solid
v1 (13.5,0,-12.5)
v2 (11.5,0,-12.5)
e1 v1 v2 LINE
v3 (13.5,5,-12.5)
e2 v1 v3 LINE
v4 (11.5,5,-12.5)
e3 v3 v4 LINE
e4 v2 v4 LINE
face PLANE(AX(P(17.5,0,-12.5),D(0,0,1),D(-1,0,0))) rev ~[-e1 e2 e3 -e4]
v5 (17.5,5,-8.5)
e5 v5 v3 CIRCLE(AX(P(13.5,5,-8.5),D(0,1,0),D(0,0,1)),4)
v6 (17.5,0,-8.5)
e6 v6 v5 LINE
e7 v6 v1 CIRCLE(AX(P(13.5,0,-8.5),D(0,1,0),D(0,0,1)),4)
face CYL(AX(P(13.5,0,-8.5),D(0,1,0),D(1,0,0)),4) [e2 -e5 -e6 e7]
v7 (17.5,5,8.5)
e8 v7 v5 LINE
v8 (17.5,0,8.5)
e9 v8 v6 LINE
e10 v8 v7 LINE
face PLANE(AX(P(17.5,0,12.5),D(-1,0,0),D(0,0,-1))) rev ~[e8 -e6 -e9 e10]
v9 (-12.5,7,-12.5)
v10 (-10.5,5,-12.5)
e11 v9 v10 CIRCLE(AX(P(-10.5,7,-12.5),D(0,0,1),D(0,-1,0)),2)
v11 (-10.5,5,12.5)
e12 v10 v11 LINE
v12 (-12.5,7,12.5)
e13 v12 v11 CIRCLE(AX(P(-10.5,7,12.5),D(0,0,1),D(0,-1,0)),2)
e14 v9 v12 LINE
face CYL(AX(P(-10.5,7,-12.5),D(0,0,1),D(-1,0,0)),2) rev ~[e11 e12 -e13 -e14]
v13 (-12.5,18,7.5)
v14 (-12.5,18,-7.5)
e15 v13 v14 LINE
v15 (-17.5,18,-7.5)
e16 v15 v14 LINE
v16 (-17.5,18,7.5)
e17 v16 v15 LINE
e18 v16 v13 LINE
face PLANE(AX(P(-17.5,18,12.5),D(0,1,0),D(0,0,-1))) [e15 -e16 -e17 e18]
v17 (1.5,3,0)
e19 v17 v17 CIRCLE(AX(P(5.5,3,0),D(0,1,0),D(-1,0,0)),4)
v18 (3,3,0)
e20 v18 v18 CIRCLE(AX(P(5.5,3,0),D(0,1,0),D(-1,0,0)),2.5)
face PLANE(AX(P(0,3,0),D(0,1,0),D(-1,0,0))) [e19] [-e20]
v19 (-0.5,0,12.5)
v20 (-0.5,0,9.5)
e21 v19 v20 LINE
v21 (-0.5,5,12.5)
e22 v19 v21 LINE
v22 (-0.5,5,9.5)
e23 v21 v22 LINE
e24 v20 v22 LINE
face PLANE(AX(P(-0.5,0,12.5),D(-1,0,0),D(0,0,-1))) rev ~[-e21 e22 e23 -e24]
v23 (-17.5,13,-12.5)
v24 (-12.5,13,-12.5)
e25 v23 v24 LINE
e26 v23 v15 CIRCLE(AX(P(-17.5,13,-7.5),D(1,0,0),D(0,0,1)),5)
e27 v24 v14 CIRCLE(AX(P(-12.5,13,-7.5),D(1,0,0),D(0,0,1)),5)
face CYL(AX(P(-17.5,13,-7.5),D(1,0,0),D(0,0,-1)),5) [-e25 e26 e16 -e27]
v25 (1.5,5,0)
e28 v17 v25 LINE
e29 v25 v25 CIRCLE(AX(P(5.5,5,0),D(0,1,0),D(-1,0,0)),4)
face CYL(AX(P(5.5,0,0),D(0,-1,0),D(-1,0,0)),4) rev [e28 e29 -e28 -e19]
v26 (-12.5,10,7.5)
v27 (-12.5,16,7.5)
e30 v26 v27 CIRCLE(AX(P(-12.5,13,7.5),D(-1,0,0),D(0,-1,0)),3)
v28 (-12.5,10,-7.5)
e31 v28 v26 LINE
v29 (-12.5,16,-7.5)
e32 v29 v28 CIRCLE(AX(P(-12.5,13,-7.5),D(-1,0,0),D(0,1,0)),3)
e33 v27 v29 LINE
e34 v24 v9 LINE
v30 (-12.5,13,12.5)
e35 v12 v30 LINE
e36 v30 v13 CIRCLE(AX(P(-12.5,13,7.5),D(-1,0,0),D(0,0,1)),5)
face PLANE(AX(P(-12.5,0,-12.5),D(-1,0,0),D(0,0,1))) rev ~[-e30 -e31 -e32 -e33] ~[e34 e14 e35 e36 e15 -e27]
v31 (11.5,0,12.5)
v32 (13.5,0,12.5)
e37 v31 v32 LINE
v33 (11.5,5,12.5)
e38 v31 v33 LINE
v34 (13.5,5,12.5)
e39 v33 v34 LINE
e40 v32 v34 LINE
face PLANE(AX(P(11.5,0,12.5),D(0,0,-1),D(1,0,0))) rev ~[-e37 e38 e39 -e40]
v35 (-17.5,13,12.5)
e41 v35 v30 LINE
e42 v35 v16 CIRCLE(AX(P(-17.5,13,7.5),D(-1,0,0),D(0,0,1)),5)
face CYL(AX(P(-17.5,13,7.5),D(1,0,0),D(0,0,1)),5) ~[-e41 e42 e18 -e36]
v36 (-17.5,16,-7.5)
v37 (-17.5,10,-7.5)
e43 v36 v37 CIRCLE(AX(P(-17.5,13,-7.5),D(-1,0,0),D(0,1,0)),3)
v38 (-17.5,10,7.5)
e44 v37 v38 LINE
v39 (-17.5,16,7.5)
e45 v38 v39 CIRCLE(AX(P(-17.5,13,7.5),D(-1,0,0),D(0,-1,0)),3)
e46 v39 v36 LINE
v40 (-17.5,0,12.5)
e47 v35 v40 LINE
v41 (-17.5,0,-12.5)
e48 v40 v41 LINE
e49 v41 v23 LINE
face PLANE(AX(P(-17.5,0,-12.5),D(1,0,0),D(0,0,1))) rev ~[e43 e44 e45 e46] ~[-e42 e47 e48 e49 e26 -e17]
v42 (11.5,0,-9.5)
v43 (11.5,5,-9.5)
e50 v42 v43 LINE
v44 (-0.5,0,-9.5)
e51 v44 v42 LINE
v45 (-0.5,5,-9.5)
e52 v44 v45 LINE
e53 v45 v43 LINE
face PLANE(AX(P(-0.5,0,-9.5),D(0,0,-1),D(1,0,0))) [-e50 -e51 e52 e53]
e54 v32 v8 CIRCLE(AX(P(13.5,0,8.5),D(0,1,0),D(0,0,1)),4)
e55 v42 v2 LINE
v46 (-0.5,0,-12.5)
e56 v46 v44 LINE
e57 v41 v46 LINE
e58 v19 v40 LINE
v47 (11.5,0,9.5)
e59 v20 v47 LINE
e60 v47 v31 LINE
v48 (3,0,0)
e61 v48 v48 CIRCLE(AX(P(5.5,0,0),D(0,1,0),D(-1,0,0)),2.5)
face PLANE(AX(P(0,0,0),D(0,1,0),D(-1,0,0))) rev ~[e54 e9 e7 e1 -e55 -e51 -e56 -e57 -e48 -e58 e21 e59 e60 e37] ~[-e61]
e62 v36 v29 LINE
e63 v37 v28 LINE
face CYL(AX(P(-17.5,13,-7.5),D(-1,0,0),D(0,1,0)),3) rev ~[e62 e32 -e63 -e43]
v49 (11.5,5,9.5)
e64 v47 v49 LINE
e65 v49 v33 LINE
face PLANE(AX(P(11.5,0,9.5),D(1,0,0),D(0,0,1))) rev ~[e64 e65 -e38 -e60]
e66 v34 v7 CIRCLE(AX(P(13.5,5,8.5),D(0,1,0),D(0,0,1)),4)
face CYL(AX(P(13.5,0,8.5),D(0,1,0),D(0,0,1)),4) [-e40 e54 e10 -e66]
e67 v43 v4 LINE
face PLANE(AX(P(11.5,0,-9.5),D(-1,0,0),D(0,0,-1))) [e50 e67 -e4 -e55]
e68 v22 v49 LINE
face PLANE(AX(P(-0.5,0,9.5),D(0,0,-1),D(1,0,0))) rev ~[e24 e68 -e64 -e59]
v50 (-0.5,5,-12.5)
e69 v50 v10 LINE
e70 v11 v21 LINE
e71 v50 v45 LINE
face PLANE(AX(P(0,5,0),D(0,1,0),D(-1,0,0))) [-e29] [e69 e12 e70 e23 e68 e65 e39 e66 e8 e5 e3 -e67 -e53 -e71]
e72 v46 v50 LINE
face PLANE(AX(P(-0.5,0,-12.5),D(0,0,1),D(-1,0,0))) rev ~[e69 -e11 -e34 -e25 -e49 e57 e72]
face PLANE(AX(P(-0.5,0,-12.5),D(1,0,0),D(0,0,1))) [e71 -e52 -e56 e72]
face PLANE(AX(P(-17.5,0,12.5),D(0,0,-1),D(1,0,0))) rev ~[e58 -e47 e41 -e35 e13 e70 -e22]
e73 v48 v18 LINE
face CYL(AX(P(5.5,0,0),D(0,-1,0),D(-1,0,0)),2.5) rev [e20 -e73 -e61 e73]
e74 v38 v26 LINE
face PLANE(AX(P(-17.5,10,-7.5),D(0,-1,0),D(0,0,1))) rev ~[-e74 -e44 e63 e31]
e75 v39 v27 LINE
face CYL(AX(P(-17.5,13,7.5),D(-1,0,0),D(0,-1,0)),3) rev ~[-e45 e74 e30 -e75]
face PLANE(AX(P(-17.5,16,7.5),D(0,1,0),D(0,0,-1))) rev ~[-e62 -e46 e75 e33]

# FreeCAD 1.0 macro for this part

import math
import FreeCAD as App
import Part
import Sketcher

V = App.Vector
Q = App.Units.Quantity


def edges_at(feature, points):
    """Names of the edges that pass closest to the given points."""
    edges = feature.Shape.Edges
    near = lambda p: min(range(len(edges)), key=lambda i: edges[i].distToShape(Part.Vertex(*p))[0])
    return sorted({f"Edge{near(p) + 1}" for p in points})


def add_polygon(sketch, points):
    """Adds a closed chain of lines whose ends are joined by coincident constraints."""
    first, n = sketch.GeometryCount, len(points)
    for a, b in zip(points, points[1:] + points[:1]):
        sketch.addGeometry(Part.LineSegment(App.Vector(*a, 0), App.Vector(*b, 0)), False)
    for i in range(n):
        sketch.addConstraint(Sketcher.Constraint("Coincident", first + i, 2, first + (i + 1) % n, 1))

doc = App.newDocument("Part")
body = doc.addObject("PartDesign::Body", "Body")

sketch1 = body.newObject("Sketcher::SketchObject", "Sketch")
sketch1.AttachmentSupport = (doc.getObject("XZ_Plane"), [""])
sketch1.MapMode = "FlatFace"
add_polygon(sketch1, [(17.5, 12.5), (17.5, -12.5), (11.5, -12.5), (11.5, -9.5), (-0.5, -9.5), (-0.5, -12.5), (-17.5, -12.5), (-17.5, 12.5), (-0.5, 12.5), (-0.5, 9.5), (11.5, 9.5), (11.5, 12.5)])
sketch1.addGeometry(Part.Circle(V(5.5, 0, 0), V(0, 0, 1), 4), False)
sketch1.addConstraint([
    Sketcher.Constraint("Vertical", 0),
    Sketcher.Constraint("Horizontal", 1),
    Sketcher.Constraint("Vertical", 2),
    Sketcher.Constraint("Horizontal", 3),
    Sketcher.Constraint("Vertical", 4),
    Sketcher.Constraint("Horizontal", 5),
    Sketcher.Constraint("Vertical", 6),
    Sketcher.Constraint("Horizontal", 7),
    Sketcher.Constraint("Vertical", 8),
    Sketcher.Constraint("Horizontal", 9),
    Sketcher.Constraint("Vertical", 10),
    Sketcher.Constraint("Horizontal", 11),
    Sketcher.Constraint("Symmetric", 0, 2, 6, 2, -1, 1),
    Sketcher.Constraint("Symmetric", 4, 2, 7, 2, -1),
    Sketcher.Constraint("Symmetric", 2, 2, 9, 2, -1),
    Sketcher.Constraint("PointOnObject", 12, 3, -1),
    Sketcher.Constraint("Horizontal", 7, 2, 10, 2),
    Sketcher.Constraint("Diameter", 12, Q("8 mm")),
    Sketcher.Constraint("DistanceX", 1, 2, 1, 1, Q("6 mm")),
    Sketcher.Constraint("DistanceX", 3, 2, 3, 1, Q("12 mm")),
    Sketcher.Constraint("DistanceY", 0, 2, 0, 1, Q("25 mm")),
    Sketcher.Constraint("DistanceX", 12, 3, 0, 2, Q("12 mm")),
    Sketcher.Constraint("DistanceY", 3, 2, 8, 2, Q("19 mm")),
    Sketcher.Constraint("DistanceX", 5, 2, 5, 1, Q("17 mm")),
])
pad1 = body.newObject("PartDesign::Pad", "Pad")
pad1.Profile = sketch1
pad1.Length = 5
pad1.Reversed = True

sketch2 = body.newObject("Sketcher::SketchObject", "Sketch001")
sketch2.AttachmentSupport = (doc.getObject("YZ_Plane"), [""])
sketch2.MapMode = "FlatFace"
sketch2.AttachmentOffset = App.Placement(V(0, 0, -17.5), App.Rotation())
add_polygon(sketch2, [(0, -12), (0, 12), (18, 12), (18, -12)])
sketch2.addConstraint([
    Sketcher.Constraint("Vertical", 0),
    Sketcher.Constraint("Horizontal", 1),
    Sketcher.Constraint("Vertical", 2),
    Sketcher.Constraint("Horizontal", 3),
    Sketcher.Constraint("Symmetric", 0, 2, 3, 2, -1, 1),
    Sketcher.Constraint("DistanceX", 1, 1, 1, 2, Q("18 mm")),
    Sketcher.Constraint("DistanceY", 0, 1, 0, 2, Q("25 mm")),
])
pad2 = body.newObject("PartDesign::Pad", "Pad001")
pad2.Profile = sketch2
pad2.Length = 5

sketch3 = body.newObject("Sketcher::SketchObject", "Sketch002")
sketch3.AttachmentSupport = (doc.getObject("YZ_Plane"), [""])
sketch3.MapMode = "FlatFace"
sketch3.AttachmentOffset = App.Placement(V(0, 0, -17.5), App.Rotation())
sketch3.addGeometry([
    Part.ArcOfCircle(Part.Circle(V(13, -7.5, 0), V(0, 0, 1), 3), math.radians(180), math.radians(360)),
    Part.LineSegment(V(10, -7.5, 0), V(10, 7.5, 0)),
    Part.ArcOfCircle(Part.Circle(V(13, 7.5, 0), V(0, 0, 1), 3), math.radians(0), math.radians(180)),
    Part.LineSegment(V(16, 7.5, 0), V(16, -7.5, 0)),
], False)
sketch3.addConstraint([
    Sketcher.Constraint("Tangent", 0, 1, 1, 1),
    Sketcher.Constraint("Tangent", 1, 2, 2, 2),
    Sketcher.Constraint("Tangent", 2, 1, 3, 1),
    Sketcher.Constraint("Tangent", 3, 2, 0, 2),
    Sketcher.Constraint("Vertical", 1),
    Sketcher.Constraint("Vertical", 3),
    Sketcher.Constraint("Radius", 0, Q("3 mm")),
    Sketcher.Constraint("DistanceY", 1, 1, 1, 2, Q("15 mm")),
    Sketcher.Constraint("DistanceX", -1, 1, 0, 3, Q("13 mm")),
    Sketcher.Constraint("DistanceY", 0, 3, -1, 1, Q("7.5 mm")),
])
pocket1 = body.newObject("PartDesign::Pocket", "Pocket")
pocket1.Profile = sketch3
pocket1.Length = 5
pocket1.Reversed = True

sketch4 = body.newObject("Sketcher::SketchObject", "Sketch003")
sketch4.AttachmentSupport = (doc.getObject("XZ_Plane"), [""])
sketch4.MapMode = "FlatFace"
sketch4.addGeometry([
    Part.Circle(V(5.5, 0, 0), V(0, 0, 1), 4),
    Part.Circle(V(5.5, 0, 0), V(0, 0, 1), 2.5),
], False)
sketch4.addConstraint([
    Sketcher.Constraint("Coincident", 1, 3, 0, 3),
    Sketcher.Constraint("PointOnObject", 0, 3, -1),
    Sketcher.Constraint("Diameter", 1, Q("5 mm")),
    Sketcher.Constraint("Diameter", 0, Q("8 mm")),
    Sketcher.Constraint("DistanceX", -1, 1, 0, 3, Q("5.5 mm")),
])
pad3 = body.newObject("PartDesign::Pad", "Pad002")
pad3.Profile = sketch4
pad3.Length = 3
pad3.Reversed = True
doc.recompute()

fillet = body.newObject("PartDesign::Fillet", "Fillet")
fillet.Base = (pad3, edges_at(pad3, [(-15, 18, 12.5), (-15, 18, -12.5)]))
fillet.Radius = 5
doc.recompute()

fillet2 = body.newObject("PartDesign::Fillet", "Fillet001")
fillet2.Base = (fillet, edges_at(fillet, [(-12.5, 5, 0)]))
fillet2.Radius = 2
doc.recompute()

fillet3 = body.newObject("PartDesign::Fillet", "Fillet002")
fillet3.Base = (fillet2, edges_at(fillet2, [(17.5, 2.5, 12.5), (17.5, 2.5, -12.5)]))
fillet3.Radius = 4

doc.recompute()
